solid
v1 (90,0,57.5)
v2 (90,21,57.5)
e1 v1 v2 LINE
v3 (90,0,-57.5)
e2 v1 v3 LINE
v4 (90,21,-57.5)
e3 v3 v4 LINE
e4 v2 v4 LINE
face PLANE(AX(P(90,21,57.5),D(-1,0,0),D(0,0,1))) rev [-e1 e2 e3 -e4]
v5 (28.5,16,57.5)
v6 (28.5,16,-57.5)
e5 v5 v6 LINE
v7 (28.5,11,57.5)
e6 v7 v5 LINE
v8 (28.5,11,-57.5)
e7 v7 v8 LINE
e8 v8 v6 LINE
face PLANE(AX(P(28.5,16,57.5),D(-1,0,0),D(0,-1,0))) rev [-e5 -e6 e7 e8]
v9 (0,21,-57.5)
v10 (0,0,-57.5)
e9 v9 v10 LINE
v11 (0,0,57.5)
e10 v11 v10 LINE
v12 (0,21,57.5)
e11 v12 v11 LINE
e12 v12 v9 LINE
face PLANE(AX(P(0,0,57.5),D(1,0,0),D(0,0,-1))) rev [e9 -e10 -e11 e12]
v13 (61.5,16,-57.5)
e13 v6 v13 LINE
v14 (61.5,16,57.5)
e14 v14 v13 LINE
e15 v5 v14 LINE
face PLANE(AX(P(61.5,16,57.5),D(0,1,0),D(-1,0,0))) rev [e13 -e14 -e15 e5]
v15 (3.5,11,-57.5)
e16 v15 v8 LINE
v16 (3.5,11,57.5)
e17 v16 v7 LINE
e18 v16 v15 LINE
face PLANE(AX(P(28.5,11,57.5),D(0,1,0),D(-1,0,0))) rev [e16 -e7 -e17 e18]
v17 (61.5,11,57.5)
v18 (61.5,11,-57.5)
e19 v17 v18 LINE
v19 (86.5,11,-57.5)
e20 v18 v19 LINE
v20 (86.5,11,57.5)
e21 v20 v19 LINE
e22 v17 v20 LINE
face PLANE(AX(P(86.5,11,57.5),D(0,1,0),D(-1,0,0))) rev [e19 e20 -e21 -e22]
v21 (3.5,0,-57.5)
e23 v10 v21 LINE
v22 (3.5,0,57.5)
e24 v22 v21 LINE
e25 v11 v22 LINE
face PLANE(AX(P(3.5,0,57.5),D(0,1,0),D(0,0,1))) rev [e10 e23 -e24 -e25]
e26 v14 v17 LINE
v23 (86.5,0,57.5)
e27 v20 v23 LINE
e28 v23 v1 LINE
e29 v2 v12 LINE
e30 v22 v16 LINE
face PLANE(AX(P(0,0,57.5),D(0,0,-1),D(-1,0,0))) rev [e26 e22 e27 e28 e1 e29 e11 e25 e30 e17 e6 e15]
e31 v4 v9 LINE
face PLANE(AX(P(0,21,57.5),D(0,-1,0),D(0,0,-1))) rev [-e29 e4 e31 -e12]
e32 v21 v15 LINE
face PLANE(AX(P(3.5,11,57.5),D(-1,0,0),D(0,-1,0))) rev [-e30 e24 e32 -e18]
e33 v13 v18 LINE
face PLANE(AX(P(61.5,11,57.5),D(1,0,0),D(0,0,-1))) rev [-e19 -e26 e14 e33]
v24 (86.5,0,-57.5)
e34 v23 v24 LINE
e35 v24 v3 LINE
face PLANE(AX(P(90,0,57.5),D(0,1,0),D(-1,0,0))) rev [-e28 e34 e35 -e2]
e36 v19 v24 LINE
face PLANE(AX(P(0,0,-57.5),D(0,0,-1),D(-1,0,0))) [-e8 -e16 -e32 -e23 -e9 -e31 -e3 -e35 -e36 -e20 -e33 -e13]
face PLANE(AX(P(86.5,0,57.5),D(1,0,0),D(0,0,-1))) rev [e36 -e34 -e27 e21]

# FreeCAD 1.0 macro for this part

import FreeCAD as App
import Part
import Sketcher
Q = App.Units.Quantity


def add_polygon(sketch, points):
    """Adds a closed chain of lines whose ends are joined by coincident constraints."""
    first, n = sketch.GeometryCount, len(points)
    for a, b in zip(points, points[1:] + points[:1]):
        sketch.addGeometry(Part.LineSegment(App.Vector(*a, 0), App.Vector(*b, 0)), False)
    for i in range(n):
        sketch.addConstraint(Sketcher.Constraint("Coincident", first + i, 2, first + (i + 1) % n, 1))

doc = App.newDocument("Part")
params = doc.addObject("Spreadsheet::Sheet", "Params")
for row, (alias, value) in enumerate([
    ("sketch1_width", "25 mm"),
    ("sketch1_width2", "33 mm"),
    ("sketch1_width3", "90 mm"),
    ("sketch1_height", "21 mm"),
    ("sketch1_height2", "11 mm"),
    ("pad1_length", "115 mm"),
], start=1):
    params.set(f"A{row}", alias)
    params.set(f"B{row}", "=" + value)
    params.setAlias(f"B{row}", alias)

body = doc.addObject("PartDesign::Body", "Body")

# Sketch on XY plane
sketch1 = doc.addObject("Sketcher::SketchObject", "Sketch")
body.addObject(sketch1)
sketch1.AttachmentSupport = (doc.XY_Plane, [""])
sketch1.MapMode = "FlatFace"
add_polygon(sketch1, [(0, 21), (0, 0), (3.5, 0), (3.5, 11), (28.5, 11), (28.5, 16), (61.5, 16), (61.5, 11), (86.5, 11), (86.5, 0), (90, 0), (90, 21)])  # lines 0-11
sketch1.addConstraint([
    Sketcher.Constraint("Vertical", 0),
    Sketcher.Constraint("Horizontal", 1),
    Sketcher.Constraint("Vertical", 2),
    Sketcher.Constraint("Horizontal", 3),
    Sketcher.Constraint("Vertical", 4),
    Sketcher.Constraint("Horizontal", 5),
    Sketcher.Constraint("Vertical", 6),
    Sketcher.Constraint("Horizontal", 7),
    Sketcher.Constraint("Vertical", 8),
    Sketcher.Constraint("Horizontal", 9),
    Sketcher.Constraint("Vertical", 10),
    Sketcher.Constraint("Horizontal", 11),
    Sketcher.Constraint("Coincident", 0, 2, -1, 1),
    Sketcher.Constraint("PointOnObject", 8, 2, -1),
    Sketcher.Constraint("Horizontal", 3, 2, 6, 2),
    Sketcher.Constraint("Equal", 3, 7),
    Sketcher.Constraint("Equal", 1, 9),
    Sketcher.Constraint("DistanceX", 3, 1, 3, 2, Q("25 mm")),
    Sketcher.Constraint("DistanceX", 5, 1, 5, 2, Q("33 mm")),
    Sketcher.Constraint("DistanceX", 11, 2, 11, 1, Q("90 mm")),
    Sketcher.Constraint("DistanceY", 0, 2, 0, 1, Q("21 mm")),
    Sketcher.Constraint("DistanceY", 2, 1, 2, 2, Q("11 mm")),
    Sketcher.Constraint("DistanceY", 4, 1, 4, 2, Q("5 mm")),
])
sketch1.setExpression("Constraints[29]", "Params.sketch1_width")
sketch1.setExpression("Constraints[30]", "Params.sketch1_width2")
sketch1.setExpression("Constraints[31]", "Params.sketch1_width3")
sketch1.setExpression("Constraints[32]", "Params.sketch1_height")
sketch1.setExpression("Constraints[33]", "Params.sketch1_height2")
pad1 = doc.addObject("PartDesign::Pad", "Pad")
body.addObject(pad1)
pad1.Profile = sketch1
pad1.setExpression("Length", "Params.pad1_length")
pad1.Midplane = True

doc.recompute()
